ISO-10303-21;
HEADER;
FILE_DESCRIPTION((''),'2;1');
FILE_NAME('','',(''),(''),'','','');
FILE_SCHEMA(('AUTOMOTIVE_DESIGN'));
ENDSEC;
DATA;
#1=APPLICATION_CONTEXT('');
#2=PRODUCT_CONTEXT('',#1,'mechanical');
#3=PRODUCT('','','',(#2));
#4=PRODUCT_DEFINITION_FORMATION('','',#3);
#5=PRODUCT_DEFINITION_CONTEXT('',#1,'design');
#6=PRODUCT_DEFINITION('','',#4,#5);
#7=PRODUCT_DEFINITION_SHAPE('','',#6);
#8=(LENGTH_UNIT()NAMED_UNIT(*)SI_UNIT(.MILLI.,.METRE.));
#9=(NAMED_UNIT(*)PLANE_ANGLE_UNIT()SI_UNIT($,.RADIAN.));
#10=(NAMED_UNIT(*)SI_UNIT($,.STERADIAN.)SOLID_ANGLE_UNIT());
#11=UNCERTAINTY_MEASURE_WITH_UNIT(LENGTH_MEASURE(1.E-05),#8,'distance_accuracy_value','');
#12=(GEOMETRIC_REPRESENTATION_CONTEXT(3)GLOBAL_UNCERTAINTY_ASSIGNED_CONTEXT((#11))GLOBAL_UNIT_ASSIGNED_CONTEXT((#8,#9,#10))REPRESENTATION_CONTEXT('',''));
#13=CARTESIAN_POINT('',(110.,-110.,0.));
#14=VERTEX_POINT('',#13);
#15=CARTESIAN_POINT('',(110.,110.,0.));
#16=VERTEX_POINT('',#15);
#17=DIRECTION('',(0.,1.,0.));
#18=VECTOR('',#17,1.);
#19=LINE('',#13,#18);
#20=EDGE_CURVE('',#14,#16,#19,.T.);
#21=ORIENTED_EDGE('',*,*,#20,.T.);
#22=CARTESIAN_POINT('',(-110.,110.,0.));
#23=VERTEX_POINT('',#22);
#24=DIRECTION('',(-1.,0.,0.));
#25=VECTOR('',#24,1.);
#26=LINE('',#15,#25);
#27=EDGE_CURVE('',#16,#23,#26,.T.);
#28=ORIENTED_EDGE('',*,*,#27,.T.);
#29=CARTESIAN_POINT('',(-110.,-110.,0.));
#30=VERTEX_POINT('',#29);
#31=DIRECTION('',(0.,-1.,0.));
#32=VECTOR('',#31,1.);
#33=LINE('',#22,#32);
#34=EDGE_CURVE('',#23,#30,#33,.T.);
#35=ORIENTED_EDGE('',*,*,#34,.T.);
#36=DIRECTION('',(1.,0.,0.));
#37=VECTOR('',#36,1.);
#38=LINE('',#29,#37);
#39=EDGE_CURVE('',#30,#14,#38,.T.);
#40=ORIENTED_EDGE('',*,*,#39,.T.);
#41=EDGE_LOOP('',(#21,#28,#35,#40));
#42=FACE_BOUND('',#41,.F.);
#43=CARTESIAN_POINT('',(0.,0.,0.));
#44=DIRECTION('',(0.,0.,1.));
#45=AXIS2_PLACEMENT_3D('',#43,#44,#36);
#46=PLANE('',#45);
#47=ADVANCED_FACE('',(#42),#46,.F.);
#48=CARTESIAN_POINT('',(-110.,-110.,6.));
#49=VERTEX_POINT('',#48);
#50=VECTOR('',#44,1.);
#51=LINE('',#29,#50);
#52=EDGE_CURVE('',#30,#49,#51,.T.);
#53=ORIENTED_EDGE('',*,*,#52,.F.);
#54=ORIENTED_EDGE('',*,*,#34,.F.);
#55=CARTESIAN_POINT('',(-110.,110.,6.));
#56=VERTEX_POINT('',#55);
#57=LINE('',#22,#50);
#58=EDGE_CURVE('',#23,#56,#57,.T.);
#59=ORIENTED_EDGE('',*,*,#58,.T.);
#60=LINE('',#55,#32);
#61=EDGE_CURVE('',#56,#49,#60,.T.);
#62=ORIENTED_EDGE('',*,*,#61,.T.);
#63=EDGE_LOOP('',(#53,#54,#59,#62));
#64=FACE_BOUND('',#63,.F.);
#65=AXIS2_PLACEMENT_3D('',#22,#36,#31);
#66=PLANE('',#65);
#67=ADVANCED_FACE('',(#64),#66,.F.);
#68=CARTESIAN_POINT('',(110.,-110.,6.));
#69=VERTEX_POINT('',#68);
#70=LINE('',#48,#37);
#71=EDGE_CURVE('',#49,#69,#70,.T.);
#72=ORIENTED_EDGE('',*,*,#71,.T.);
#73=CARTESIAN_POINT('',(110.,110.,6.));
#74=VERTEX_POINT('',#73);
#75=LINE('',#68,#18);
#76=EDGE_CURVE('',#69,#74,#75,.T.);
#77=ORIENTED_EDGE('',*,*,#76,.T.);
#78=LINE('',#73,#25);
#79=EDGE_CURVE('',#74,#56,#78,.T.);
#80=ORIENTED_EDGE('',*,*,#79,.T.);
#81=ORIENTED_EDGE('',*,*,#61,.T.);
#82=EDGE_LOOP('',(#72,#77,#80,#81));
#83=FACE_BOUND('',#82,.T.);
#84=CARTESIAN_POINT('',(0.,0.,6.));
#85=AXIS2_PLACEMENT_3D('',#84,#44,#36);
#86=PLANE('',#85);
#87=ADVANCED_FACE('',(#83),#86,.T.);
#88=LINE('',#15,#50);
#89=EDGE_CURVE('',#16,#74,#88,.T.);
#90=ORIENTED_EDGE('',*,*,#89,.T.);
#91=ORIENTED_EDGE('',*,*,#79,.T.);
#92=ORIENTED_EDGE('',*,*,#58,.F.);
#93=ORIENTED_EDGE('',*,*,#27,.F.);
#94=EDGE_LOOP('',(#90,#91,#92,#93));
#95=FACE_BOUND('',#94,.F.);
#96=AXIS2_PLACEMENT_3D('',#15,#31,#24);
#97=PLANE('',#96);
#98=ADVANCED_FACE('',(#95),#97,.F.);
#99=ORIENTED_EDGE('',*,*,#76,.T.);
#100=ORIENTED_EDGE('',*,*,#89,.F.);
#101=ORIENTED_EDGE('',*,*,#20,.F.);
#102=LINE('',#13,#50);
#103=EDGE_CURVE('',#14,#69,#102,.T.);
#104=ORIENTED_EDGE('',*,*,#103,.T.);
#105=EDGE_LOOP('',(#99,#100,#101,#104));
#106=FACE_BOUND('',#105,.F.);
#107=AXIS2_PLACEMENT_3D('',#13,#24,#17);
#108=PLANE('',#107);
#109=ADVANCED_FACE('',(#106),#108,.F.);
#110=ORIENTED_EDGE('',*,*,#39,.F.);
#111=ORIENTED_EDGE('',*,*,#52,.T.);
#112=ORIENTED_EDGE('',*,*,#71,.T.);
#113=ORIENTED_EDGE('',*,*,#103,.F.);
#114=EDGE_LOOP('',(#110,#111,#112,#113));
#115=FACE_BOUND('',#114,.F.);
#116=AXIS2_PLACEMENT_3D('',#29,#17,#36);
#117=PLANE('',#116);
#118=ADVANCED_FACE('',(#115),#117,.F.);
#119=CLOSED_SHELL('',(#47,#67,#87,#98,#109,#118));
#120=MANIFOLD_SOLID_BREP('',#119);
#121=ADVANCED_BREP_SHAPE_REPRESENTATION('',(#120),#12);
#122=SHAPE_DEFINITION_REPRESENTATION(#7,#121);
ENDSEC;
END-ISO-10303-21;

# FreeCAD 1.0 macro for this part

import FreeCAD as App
import Part
import Sketcher
from FreeCAD import Vector


def add_polygon(sketch, points):
    """Adds a closed chain of lines whose ends are joined by coincident constraints."""
    first, n = sketch.GeometryCount, len(points)
    for a, b in zip(points, points[1:] + points[:1]):
        sketch.addGeometry(Part.LineSegment(App.Vector(*a, 0), App.Vector(*b, 0)), False)
    for i in range(n):
        sketch.addConstraint(Sketcher.Constraint("Coincident", first + i, 2, first + (i + 1) % n, 1))

doc = App.newDocument("Part")
body = doc.addObject("PartDesign::Body", "Body")

# Sketch on XY plane
sketch1 = doc.addObject("Sketcher::SketchObject", "Sketch")
body.addObject(sketch1)
sketch1.AttachmentSupport = (doc.XY_Plane, [""])
sketch1.MapMode = "FlatFace"
add_polygon(sketch1, [(-110, 110), (-110, -110), (110, -110), (110, 110)])  # lines 0-3
sketch1.addConstraint([
    Sketcher.Constraint("Vertical", 0),
    Sketcher.Constraint("Horizontal", 1),
    Sketcher.Constraint("Vertical", 2),
    Sketcher.Constraint("Horizontal", 3),
    Sketcher.Constraint("Symmetric", 0, 2, 2, 2, -1, 1),
    Sketcher.Constraint("Equal", 3, 0),
    Sketcher.Constraint("DistanceX", 1, 1, 1, 2, 220.0),
])
pad1 = doc.addObject("PartDesign::Pad", "Pad")
body.addObject(pad1)
pad1.Profile = sketch1
pad1.Length = 6

doc.recompute()
